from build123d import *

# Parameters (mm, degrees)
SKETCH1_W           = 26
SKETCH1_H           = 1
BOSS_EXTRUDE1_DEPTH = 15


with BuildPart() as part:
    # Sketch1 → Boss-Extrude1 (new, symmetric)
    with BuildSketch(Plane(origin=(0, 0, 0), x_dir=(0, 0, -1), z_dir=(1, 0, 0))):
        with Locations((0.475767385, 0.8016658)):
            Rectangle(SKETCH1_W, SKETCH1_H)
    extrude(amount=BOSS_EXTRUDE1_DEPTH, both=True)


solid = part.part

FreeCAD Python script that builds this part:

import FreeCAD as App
import Part
import Sketcher

doc = App.newDocument("Part")
body = doc.addObject("PartDesign::Body", "Body")

# Sketch on YZ plane
sketch1 = body.newObject("Sketcher::SketchObject", "Sketch")
sketch1.AttachmentSupport = (doc.getObject("YZ_Plane"), [""])
sketch1.MapMode = "FlatFace"
sketch1.addGeometry([
    Part.LineSegment(App.Vector(1.3, 12.5, 0), App.Vector(0.3, 12.5, 0)),
    Part.LineSegment(App.Vector(0.3, 12.5, 0), App.Vector(0.3, -13.5, 0)),
    Part.LineSegment(App.Vector(0.3, -13.5, 0), App.Vector(1.3, -13.5, 0)),
    Part.LineSegment(App.Vector(1.3, -13.5, 0), App.Vector(1.3, 12.5, 0)),
], False)
sketch1.addConstraint([
    Sketcher.Constraint("Coincident", 0, 2, 1, 1),
    Sketcher.Constraint("Coincident", 1, 2, 2, 1),
    Sketcher.Constraint("Coincident", 2, 2, 3, 1),
    Sketcher.Constraint("Coincident", 3, 2, 0, 1),
    Sketcher.Constraint("Horizontal", 0),
    Sketcher.Constraint("Vertical", 1),
    Sketcher.Constraint("Horizontal", 2),
    Sketcher.Constraint("Vertical", 3),
    Sketcher.Constraint("DistanceX", 0, 2, 0, 1, 1.0),
    Sketcher.Constraint("DistanceY", 1, 2, 1, 1, 26.0),
    Sketcher.Constraint("DistanceX", -1, 1, 0, 2, 0.301666),
    Sketcher.Constraint("DistanceY", -1, 1, 0, 2, 12.524233),
])
pad1 = body.newObject("PartDesign::Pad", "Pad")
pad1.Profile = sketch1
pad1.Length = 30
pad1.Midplane = True

doc.recompute()
